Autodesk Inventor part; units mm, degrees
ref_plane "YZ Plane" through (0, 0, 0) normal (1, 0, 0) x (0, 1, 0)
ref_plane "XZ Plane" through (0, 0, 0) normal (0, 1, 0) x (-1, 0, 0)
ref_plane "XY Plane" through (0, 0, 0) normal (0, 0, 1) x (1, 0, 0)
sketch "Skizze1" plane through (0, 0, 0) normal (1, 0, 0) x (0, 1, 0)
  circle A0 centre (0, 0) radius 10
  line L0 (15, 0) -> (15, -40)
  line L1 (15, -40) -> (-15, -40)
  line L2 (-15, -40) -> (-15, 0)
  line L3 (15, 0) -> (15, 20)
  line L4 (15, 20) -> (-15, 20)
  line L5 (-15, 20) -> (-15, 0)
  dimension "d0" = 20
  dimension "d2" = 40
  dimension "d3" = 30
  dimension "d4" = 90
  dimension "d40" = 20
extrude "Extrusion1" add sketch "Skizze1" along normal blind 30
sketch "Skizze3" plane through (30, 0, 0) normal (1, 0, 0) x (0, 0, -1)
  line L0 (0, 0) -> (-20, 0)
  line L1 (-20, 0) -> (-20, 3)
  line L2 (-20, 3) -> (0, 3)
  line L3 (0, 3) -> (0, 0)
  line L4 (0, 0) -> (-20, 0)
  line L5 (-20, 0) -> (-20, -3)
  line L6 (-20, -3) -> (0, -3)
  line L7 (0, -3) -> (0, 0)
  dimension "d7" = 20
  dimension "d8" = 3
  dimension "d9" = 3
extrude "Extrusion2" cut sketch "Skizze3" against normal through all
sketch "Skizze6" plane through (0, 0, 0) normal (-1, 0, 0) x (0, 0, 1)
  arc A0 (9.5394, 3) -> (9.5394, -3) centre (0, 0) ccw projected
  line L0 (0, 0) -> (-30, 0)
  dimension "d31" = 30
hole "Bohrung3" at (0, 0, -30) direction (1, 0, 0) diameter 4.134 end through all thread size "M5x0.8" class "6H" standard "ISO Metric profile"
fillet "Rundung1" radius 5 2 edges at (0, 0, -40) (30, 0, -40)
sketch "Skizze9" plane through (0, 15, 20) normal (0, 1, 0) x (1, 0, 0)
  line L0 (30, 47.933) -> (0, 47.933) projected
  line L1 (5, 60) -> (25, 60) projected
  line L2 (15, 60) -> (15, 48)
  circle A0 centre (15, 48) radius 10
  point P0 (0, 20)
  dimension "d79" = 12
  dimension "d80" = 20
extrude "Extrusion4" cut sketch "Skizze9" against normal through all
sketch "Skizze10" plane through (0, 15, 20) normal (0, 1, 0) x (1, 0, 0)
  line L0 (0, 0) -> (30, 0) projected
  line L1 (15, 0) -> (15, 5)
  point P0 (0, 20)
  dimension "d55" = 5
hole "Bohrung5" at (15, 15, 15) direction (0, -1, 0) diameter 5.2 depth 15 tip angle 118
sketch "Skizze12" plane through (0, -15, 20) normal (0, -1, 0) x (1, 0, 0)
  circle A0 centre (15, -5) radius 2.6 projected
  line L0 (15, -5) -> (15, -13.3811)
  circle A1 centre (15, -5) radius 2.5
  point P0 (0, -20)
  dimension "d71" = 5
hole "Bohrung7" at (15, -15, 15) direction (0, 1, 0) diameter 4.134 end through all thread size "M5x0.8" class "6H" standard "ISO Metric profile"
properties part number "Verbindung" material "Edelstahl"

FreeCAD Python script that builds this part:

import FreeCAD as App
import Part
import Sketcher

V = App.Vector
Q = App.Units.Quantity


def edges_at(feature, points):
    """Names of the edges that pass closest to the given points."""
    edges = feature.Shape.Edges
    near = lambda p: min(range(len(edges)), key=lambda i: edges[i].distToShape(Part.Vertex(*p))[0])
    return sorted({f"Edge{near(p) + 1}" for p in points})


def add_polygon(sketch, points):
    """Adds a closed chain of lines whose ends are joined by coincident constraints."""
    first, n = sketch.GeometryCount, len(points)
    for a, b in zip(points, points[1:] + points[:1]):
        sketch.addGeometry(Part.LineSegment(App.Vector(*a, 0), App.Vector(*b, 0)), False)
    for i in range(n):
        sketch.addConstraint(Sketcher.Constraint("Coincident", first + i, 2, first + (i + 1) % n, 1))

doc = App.newDocument("Part")
body = doc.addObject("PartDesign::Body", "Body")

# Sketch on YZ plane
sketch1 = doc.addObject("Sketcher::SketchObject", "Sketch")
body.addObject(sketch1)
sketch1.AttachmentSupport = (doc.YZ_Plane, [""])
sketch1.MapMode = "FlatFace"
add_polygon(sketch1, [(15, -40), (15, 20), (-15, 20), (-15, -40)])  # lines 0-3
sketch1.addGeometry(Part.Circle(V(0, 0, 0), V(0, 0, 1), 10), False)  # 4
sketch1.addConstraint([
    Sketcher.Constraint("Vertical", 0),
    Sketcher.Constraint("Horizontal", 1),
    Sketcher.Constraint("Vertical", 2),
    Sketcher.Constraint("Horizontal", 3),
    Sketcher.Constraint("Coincident", 4, 3, -1, 1),
    Sketcher.Constraint("Diameter", 4, Q("20 mm")),
    Sketcher.Constraint("DistanceX", 1, 2, 1, 1, Q("30 mm")),
    Sketcher.Constraint("DistanceY", -1, 1, 0, 2, Q("20 mm")),
    Sketcher.Constraint("DistanceY", 2, 2, -1, 1, Q("40 mm")),
    Sketcher.Constraint("DistanceX", -1, 1, 0, 2, Q("15 mm")),
])
pad1 = doc.addObject("PartDesign::Pad", "Pad")
body.addObject(pad1)
pad1.Profile = sketch1
pad1.Length = 30

# Sketch on YZ plane
sketch2 = doc.addObject("Sketcher::SketchObject", "Sketch001")
body.addObject(sketch2)
sketch2.AttachmentSupport = (doc.YZ_Plane, [""])
sketch2.MapMode = "FlatFace"
sketch2.AttachmentOffset = App.Placement(V(0, 0, 30), App.Rotation())
add_polygon(sketch2, [(-3, 0), (3, 0), (3, 20), (-3, 20)])  # lines 0-3
sketch2.addConstraint([
    Sketcher.Constraint("Horizontal", 0),
    Sketcher.Constraint("Vertical", 1),
    Sketcher.Constraint("Horizontal", 2),
    Sketcher.Constraint("Vertical", 3),
    Sketcher.Constraint("Symmetric", 0, 2, 3, 2, -1, 1),
    Sketcher.Constraint("DistanceY", 1, 1, 1, 2, Q("20 mm")),
    Sketcher.Constraint("DistanceX", -1, 1, 0, 2, Q("3 mm")),
])
pocket1 = doc.addObject("PartDesign::Pocket", "Pocket")
body.addObject(pocket1)
pocket1.Profile = sketch2
pocket1.Type = "ThroughAll"

# Sketch on YZ plane
sketch3 = doc.addObject("Sketcher::SketchObject", "Sketch002")
body.addObject(sketch3)
sketch3.AttachmentSupport = (doc.YZ_Plane, [""])
sketch3.MapMode = "FlatFace"
sketch3.addGeometry(Part.Circle(V(0, -30, 0), V(0, 0, 1), 2.067), False)
sketch3.addConstraint([
    Sketcher.Constraint("PointOnObject", 0, 3, -2),
    Sketcher.Constraint("Diameter", 0, Q("4.134 mm")),
    Sketcher.Constraint("DistanceY", 0, 3, -1, 1, Q("30 mm")),
])
doc.recompute()
hole = doc.addObject("PartDesign::Hole", "Hole")
body.addObject(hole)
hole.Profile = sketch3
hole.ThreadType = "None"
hole.Diameter = 4.134
hole.DepthType = "ThroughAll"
hole.Reversed = True
doc.recompute()

fillet = doc.addObject("PartDesign::Fillet", "Fillet")
body.addObject(fillet)
fillet.Base = (hole, edges_at(hole, [(0, 0, -40), (30, 0, -40)]))
fillet.Radius = 5

# Sketch on XZ plane
sketch4 = doc.addObject("Sketcher::SketchObject", "Sketch003")
body.addObject(sketch4)
sketch4.AttachmentSupport = (doc.XZ_Plane, [""])
sketch4.MapMode = "FlatFace"
sketch4.AttachmentOffset = App.Placement(V(0, 0, -15), App.Rotation())
sketch4.addGeometry(Part.Circle(V(15, -28, 0), V(0, 0, 1), 10), False)
sketch4.addConstraint([
    Sketcher.Constraint("Diameter", 0, Q("20 mm")),
    Sketcher.Constraint("DistanceX", -1, 1, 0, 3, Q("15 mm")),
    Sketcher.Constraint("DistanceY", 0, 3, -1, 1, Q("28 mm")),
])
pocket2 = doc.addObject("PartDesign::Pocket", "Pocket001")
body.addObject(pocket2)
pocket2.Profile = sketch4
pocket2.Type = "ThroughAll"
pocket2.Reversed = True

# Sketch on XZ plane
sketch5 = doc.addObject("Sketcher::SketchObject", "Sketch004")
body.addObject(sketch5)
sketch5.AttachmentSupport = (doc.XZ_Plane, [""])
sketch5.MapMode = "FlatFace"
sketch5.AttachmentOffset = App.Placement(V(0, 0, -15), App.Rotation())
sketch5.addGeometry(Part.Circle(V(15, 15, 0), V(0, 0, 1), 2.6), False)
sketch5.addConstraint([
    Sketcher.Constraint("Diameter", 0, Q("5.2 mm")),
    Sketcher.Constraint("DistanceX", -1, 1, 0, 3, Q("15 mm")),
    Sketcher.Constraint("DistanceY", -1, 1, 0, 3, Q("15 mm")),
])
doc.recompute()
hole2 = doc.addObject("PartDesign::Hole", "Hole001")
body.addObject(hole2)
hole2.Profile = sketch5
hole2.ThreadType = "None"
hole2.Diameter = 5.2
hole2.DepthType = "Dimension"
hole2.Depth = 15
hole2.DrillPoint = "Angled"
hole2.DrillPointAngle = 118
hole2.Reversed = True

# Sketch on XZ plane
sketch6 = doc.addObject("Sketcher::SketchObject", "Sketch005")
body.addObject(sketch6)
sketch6.AttachmentSupport = (doc.XZ_Plane, [""])
sketch6.MapMode = "FlatFace"
sketch6.AttachmentOffset = App.Placement(V(0, 0, 15), App.Rotation())
sketch6.addGeometry(Part.Circle(V(15, 15, 0), V(0, 0, 1), 2.067), False)
sketch6.addConstraint([
    Sketcher.Constraint("Diameter", 0, Q("4.134 mm")),
    Sketcher.Constraint("DistanceX", -1, 1, 0, 3, Q("15 mm")),
    Sketcher.Constraint("DistanceY", -1, 1, 0, 3, Q("15 mm")),
])
doc.recompute()
hole3 = doc.addObject("PartDesign::Hole", "Hole002")
body.addObject(hole3)
hole3.Profile = sketch6
hole3.ThreadType = "None"
hole3.Diameter = 4.134
hole3.DepthType = "ThroughAll"

doc.recompute()
